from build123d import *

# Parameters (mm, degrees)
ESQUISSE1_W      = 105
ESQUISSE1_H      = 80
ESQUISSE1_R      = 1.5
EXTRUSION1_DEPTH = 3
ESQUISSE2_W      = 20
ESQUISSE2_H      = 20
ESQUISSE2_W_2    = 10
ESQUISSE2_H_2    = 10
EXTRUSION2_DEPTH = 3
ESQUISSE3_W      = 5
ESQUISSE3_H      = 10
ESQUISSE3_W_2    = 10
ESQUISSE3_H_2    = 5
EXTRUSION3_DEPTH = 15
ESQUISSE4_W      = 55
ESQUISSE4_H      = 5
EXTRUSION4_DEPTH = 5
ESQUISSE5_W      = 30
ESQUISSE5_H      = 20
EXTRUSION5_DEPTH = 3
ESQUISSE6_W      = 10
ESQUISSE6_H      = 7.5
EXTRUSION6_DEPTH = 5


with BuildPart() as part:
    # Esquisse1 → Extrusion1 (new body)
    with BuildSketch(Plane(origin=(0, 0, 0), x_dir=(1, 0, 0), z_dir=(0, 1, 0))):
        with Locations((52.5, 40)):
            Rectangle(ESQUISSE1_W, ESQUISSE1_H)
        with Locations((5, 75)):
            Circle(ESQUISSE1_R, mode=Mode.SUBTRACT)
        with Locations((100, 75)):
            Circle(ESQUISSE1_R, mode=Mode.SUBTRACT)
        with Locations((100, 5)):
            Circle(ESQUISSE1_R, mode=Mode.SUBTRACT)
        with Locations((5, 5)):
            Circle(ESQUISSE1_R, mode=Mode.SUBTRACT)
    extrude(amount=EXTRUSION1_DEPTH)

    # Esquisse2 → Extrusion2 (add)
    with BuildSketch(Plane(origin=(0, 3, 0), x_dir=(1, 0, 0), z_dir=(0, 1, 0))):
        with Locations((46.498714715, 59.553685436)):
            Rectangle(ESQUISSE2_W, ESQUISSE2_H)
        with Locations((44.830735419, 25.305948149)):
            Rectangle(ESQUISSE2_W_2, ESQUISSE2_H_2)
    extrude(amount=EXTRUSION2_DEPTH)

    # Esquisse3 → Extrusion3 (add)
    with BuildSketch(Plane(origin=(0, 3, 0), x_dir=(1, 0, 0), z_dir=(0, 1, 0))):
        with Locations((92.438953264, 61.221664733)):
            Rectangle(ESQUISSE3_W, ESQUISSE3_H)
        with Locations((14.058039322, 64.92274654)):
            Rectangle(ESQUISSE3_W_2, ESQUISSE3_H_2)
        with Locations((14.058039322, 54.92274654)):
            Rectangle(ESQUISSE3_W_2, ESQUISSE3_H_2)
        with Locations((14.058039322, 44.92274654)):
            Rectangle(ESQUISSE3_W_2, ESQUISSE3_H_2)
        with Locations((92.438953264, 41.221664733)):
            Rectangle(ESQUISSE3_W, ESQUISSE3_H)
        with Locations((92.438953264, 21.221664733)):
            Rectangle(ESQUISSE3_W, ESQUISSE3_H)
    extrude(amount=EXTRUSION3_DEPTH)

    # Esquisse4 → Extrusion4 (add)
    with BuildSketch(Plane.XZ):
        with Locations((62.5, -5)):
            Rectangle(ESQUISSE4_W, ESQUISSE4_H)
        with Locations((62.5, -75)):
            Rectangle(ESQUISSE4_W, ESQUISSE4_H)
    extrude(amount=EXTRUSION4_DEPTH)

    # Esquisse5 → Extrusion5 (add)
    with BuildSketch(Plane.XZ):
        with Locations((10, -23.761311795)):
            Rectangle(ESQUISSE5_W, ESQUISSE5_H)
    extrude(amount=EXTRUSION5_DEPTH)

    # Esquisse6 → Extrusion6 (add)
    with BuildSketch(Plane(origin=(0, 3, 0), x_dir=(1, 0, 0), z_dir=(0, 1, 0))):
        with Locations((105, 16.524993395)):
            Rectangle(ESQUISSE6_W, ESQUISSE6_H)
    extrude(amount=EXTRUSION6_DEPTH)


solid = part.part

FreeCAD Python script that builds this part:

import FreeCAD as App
import Part
import Sketcher
from FreeCAD import Vector

doc = App.newDocument("Part")
body = doc.addObject("PartDesign::Body", "Body")

# Sketch on XZ plane
sketch1 = body.newObject("Sketcher::SketchObject", "Sketch")
sketch1.AttachmentSupport = (doc.getObject("XZ_Plane"), [""])
sketch1.MapMode = "FlatFace"
sketch1.addGeometry([
    Part.LineSegment(Vector(0, -80, 0), Vector(0, 0, 0)),  # 0
    Part.LineSegment(Vector(0, 0, 0), Vector(105, 0, 0)),  # 1
    Part.LineSegment(Vector(105, 0, 0), Vector(105, -80, 0)),  # 2
    Part.LineSegment(Vector(105, -80, 0), Vector(0, -80, 0)),  # 3
    Part.Circle(Vector(5, -5, 0), Vector(0, 0, 1), 1.5),  # 4
    Part.Circle(Vector(100, -5, 0), Vector(0, 0, 1), 1.5),  # 5
    Part.Circle(Vector(5, -75, 0), Vector(0, 0, 1), 1.5),  # 6
    Part.Circle(Vector(100, -75, 0), Vector(0, 0, 1), 1.5),  # 7
], False)
sketch1.addConstraint([
    Sketcher.Constraint("Coincident", 0, 2, 1, 1),
    Sketcher.Constraint("Coincident", 1, 2, 2, 1),
    Sketcher.Constraint("Coincident", 2, 2, 3, 1),
    Sketcher.Constraint("Coincident", 3, 2, 0, 1),
    Sketcher.Constraint("Vertical", 0),
    Sketcher.Constraint("Horizontal", 1),
    Sketcher.Constraint("Vertical", 2),
    Sketcher.Constraint("Horizontal", 3),
    Sketcher.Constraint("Coincident", 0, 2, -1, 1),
    Sketcher.Constraint("Equal", 4, 5),
    Sketcher.Constraint("Equal", 5, 6),
    Sketcher.Constraint("Equal", 6, 7),
    Sketcher.Constraint("Horizontal", 4, 3, 5, 3),
    Sketcher.Constraint("Horizontal", 6, 3, 7, 3),
    Sketcher.Constraint("Vertical", 4, 3, 6, 3),
    Sketcher.Constraint("Vertical", 5, 3, 7, 3),
    Sketcher.Constraint("Diameter", 4, 3.0),
    Sketcher.Constraint("DistanceX", 1, 1, 1, 2, 105.0),
    Sketcher.Constraint("DistanceY", 0, 1, 0, 2, 80.0),
    Sketcher.Constraint("DistanceX", -1, 1, 4, 3, 5.0),
    Sketcher.Constraint("DistanceY", 4, 3, -1, 1, 5.0),
    Sketcher.Constraint("DistanceX", -1, 1, 5, 3, 100.0),
    Sketcher.Constraint("DistanceY", 6, 3, -1, 1, 75.0),
])
pad1 = body.newObject("PartDesign::Pad", "Pad")
pad1.Profile = sketch1
pad1.Length = 3
pad1.Reversed = True

# Sketch on XZ plane
sketch2 = body.newObject("Sketcher::SketchObject", "Sketch001")
sketch2.AttachmentSupport = (doc.getObject("XZ_Plane"), [""])
sketch2.MapMode = "FlatFace"
sketch2.AttachmentOffset = App.Placement(Vector(0, 0, -3), App.Rotation())
sketch2.addGeometry([
    Part.LineSegment(Vector(36.498715, -69.553685, 0), Vector(36.498715, -49.553685, 0)),  # 0
    Part.LineSegment(Vector(36.498715, -49.553685, 0), Vector(56.498715, -49.553685, 0)),  # 1
    Part.LineSegment(Vector(56.498715, -49.553685, 0), Vector(56.498715, -69.553685, 0)),  # 2
    Part.LineSegment(Vector(56.498715, -69.553685, 0), Vector(36.498715, -69.553685, 0)),  # 3
    Part.LineSegment(Vector(39.830735, -30.305948, 0), Vector(39.830735, -20.305948, 0)),  # 4
    Part.LineSegment(Vector(39.830735, -20.305948, 0), Vector(49.830735, -20.305948, 0)),  # 5
    Part.LineSegment(Vector(49.830735, -20.305948, 0), Vector(49.830735, -30.305948, 0)),  # 6
    Part.LineSegment(Vector(49.830735, -30.305948, 0), Vector(39.830735, -30.305948, 0)),  # 7
], False)
sketch2.addConstraint([
    Sketcher.Constraint("Coincident", 0, 2, 1, 1),
    Sketcher.Constraint("Coincident", 1, 2, 2, 1),
    Sketcher.Constraint("Coincident", 2, 2, 3, 1),
    Sketcher.Constraint("Coincident", 3, 2, 0, 1),
    Sketcher.Constraint("Coincident", 4, 2, 5, 1),
    Sketcher.Constraint("Coincident", 5, 2, 6, 1),
    Sketcher.Constraint("Coincident", 6, 2, 7, 1),
    Sketcher.Constraint("Coincident", 7, 2, 4, 1),
    Sketcher.Constraint("Vertical", 0),
    Sketcher.Constraint("Horizontal", 1),
    Sketcher.Constraint("Vertical", 2),
    Sketcher.Constraint("Horizontal", 3),
    Sketcher.Constraint("Vertical", 4),
    Sketcher.Constraint("Horizontal", 5),
    Sketcher.Constraint("Vertical", 6),
    Sketcher.Constraint("Horizontal", 7),
    Sketcher.Constraint("Equal", 3, 0),
    Sketcher.Constraint("Equal", 7, 4),
    Sketcher.Constraint("DistanceX", 1, 1, 1, 2, 20.0),
    Sketcher.Constraint("DistanceX", 5, 1, 5, 2, 10.0),
    Sketcher.Constraint("DistanceY", 4, 2, -1, 1, 20.305948),
    Sketcher.Constraint("DistanceX", 0, 2, 4, 2, 3.332021),
    Sketcher.Constraint("DistanceX", -1, 1, 0, 2, 36.498715),
    Sketcher.Constraint("DistanceY", 0, 2, -1, 1, 49.553685),
])
pad2 = body.newObject("PartDesign::Pad", "Pad001")
pad2.Profile = sketch2
pad2.Length = 3
pad2.Reversed = True

# Sketch on XZ plane
sketch3 = body.newObject("Sketcher::SketchObject", "Sketch002")
sketch3.AttachmentSupport = (doc.getObject("XZ_Plane"), [""])
sketch3.MapMode = "FlatFace"
sketch3.AttachmentOffset = App.Placement(Vector(0, 0, -3), App.Rotation())
sketch3.addGeometry([
    Part.LineSegment(Vector(89.938953, -66.221665, 0), Vector(89.938953, -56.221665, 0)),  # 0
    Part.LineSegment(Vector(89.938953, -56.221665, 0), Vector(94.938953, -56.221665, 0)),  # 1
    Part.LineSegment(Vector(94.938953, -56.221665, 0), Vector(94.938953, -66.221665, 0)),  # 2
    Part.LineSegment(Vector(94.938953, -66.221665, 0), Vector(89.938953, -66.221665, 0)),  # 3
    Part.LineSegment(Vector(9.058039, -67.422747, 0), Vector(9.058039, -62.422747, 0)),  # 4
    Part.LineSegment(Vector(9.058039, -62.422747, 0), Vector(19.058039, -62.422747, 0)),  # 5
    Part.LineSegment(Vector(19.058039, -62.422747, 0), Vector(19.058039, -67.422747, 0)),  # 6
    Part.LineSegment(Vector(19.058039, -67.422747, 0), Vector(9.058039, -67.422747, 0)),  # 7
    Part.LineSegment(Vector(9.058039, -57.422747, 0), Vector(9.058039, -52.422747, 0)),  # 8
    Part.LineSegment(Vector(9.058039, -52.422747, 0), Vector(19.058039, -52.422747, 0)),  # 9
    Part.LineSegment(Vector(19.058039, -52.422747, 0), Vector(19.058039, -57.422747, 0)),  # 10
    Part.LineSegment(Vector(19.058039, -57.422747, 0), Vector(9.058039, -57.422747, 0)),  # 11
    Part.LineSegment(Vector(9.058039, -47.422747, 0), Vector(9.058039, -42.422747, 0)),  # 12
    Part.LineSegment(Vector(9.058039, -42.422747, 0), Vector(19.058039, -42.422747, 0)),  # 13
    Part.LineSegment(Vector(19.058039, -42.422747, 0), Vector(19.058039, -47.422747, 0)),  # 14
    Part.LineSegment(Vector(19.058039, -47.422747, 0), Vector(9.058039, -47.422747, 0)),  # 15
    Part.LineSegment(Vector(89.938953, -46.221665, 0), Vector(89.938953, -36.221665, 0)),  # 16
    Part.LineSegment(Vector(89.938953, -36.221665, 0), Vector(94.938953, -36.221665, 0)),  # 17
    Part.LineSegment(Vector(94.938953, -36.221665, 0), Vector(94.938953, -46.221665, 0)),  # 18
    Part.LineSegment(Vector(94.938953, -46.221665, 0), Vector(89.938953, -46.221665, 0)),  # 19
    Part.LineSegment(Vector(89.938953, -26.221665, 0), Vector(89.938953, -16.221665, 0)),  # 20
    Part.LineSegment(Vector(89.938953, -16.221665, 0), Vector(94.938953, -16.221665, 0)),  # 21
    Part.LineSegment(Vector(94.938953, -16.221665, 0), Vector(94.938953, -26.221665, 0)),  # 22
    Part.LineSegment(Vector(94.938953, -26.221665, 0), Vector(89.938953, -26.221665, 0)),  # 23
], False)
sketch3.addConstraint([
    Sketcher.Constraint("Coincident", 0, 2, 1, 1),
    Sketcher.Constraint("Coincident", 1, 2, 2, 1),
    Sketcher.Constraint("Coincident", 2, 2, 3, 1),
    Sketcher.Constraint("Coincident", 3, 2, 0, 1),
    Sketcher.Constraint("Coincident", 4, 2, 5, 1),
    Sketcher.Constraint("Coincident", 5, 2, 6, 1),
    Sketcher.Constraint("Coincident", 6, 2, 7, 1),
    Sketcher.Constraint("Coincident", 7, 2, 4, 1),
    Sketcher.Constraint("Coincident", 8, 2, 9, 1),
    Sketcher.Constraint("Coincident", 9, 2, 10, 1),
    Sketcher.Constraint("Coincident", 10, 2, 11, 1),
    Sketcher.Constraint("Coincident", 11, 2, 8, 1),
    Sketcher.Constraint("Coincident", 12, 2, 13, 1),
    Sketcher.Constraint("Coincident", 13, 2, 14, 1),
    Sketcher.Constraint("Coincident", 14, 2, 15, 1),
    Sketcher.Constraint("Coincident", 15, 2, 12, 1),
    Sketcher.Constraint("Coincident", 16, 2, 17, 1),
    Sketcher.Constraint("Coincident", 17, 2, 18, 1),
    Sketcher.Constraint("Coincident", 18, 2, 19, 1),
    Sketcher.Constraint("Coincident", 19, 2, 16, 1),
    Sketcher.Constraint("Coincident", 20, 2, 21, 1),
    Sketcher.Constraint("Coincident", 21, 2, 22, 1),
    Sketcher.Constraint("Coincident", 22, 2, 23, 1),
    Sketcher.Constraint("Coincident", 23, 2, 20, 1),
    Sketcher.Constraint("Vertical", 0),
    Sketcher.Constraint("Horizontal", 1),
    Sketcher.Constraint("Vertical", 2),
    Sketcher.Constraint("Horizontal", 3),
    Sketcher.Constraint("Vertical", 4),
    Sketcher.Constraint("Horizontal", 5),
    Sketcher.Constraint("Vertical", 6),
    Sketcher.Constraint("Horizontal", 7),
    Sketcher.Constraint("Vertical", 8),
    Sketcher.Constraint("Horizontal", 9),
    Sketcher.Constraint("Vertical", 10),
    Sketcher.Constraint("Horizontal", 11),
    Sketcher.Constraint("Vertical", 12),
    Sketcher.Constraint("Horizontal", 13),
    Sketcher.Constraint("Vertical", 14),
    Sketcher.Constraint("Horizontal", 15),
    Sketcher.Constraint("Vertical", 16),
    Sketcher.Constraint("Horizontal", 17),
    Sketcher.Constraint("Vertical", 18),
    Sketcher.Constraint("Horizontal", 19),
    Sketcher.Constraint("Vertical", 20),
    Sketcher.Constraint("Horizontal", 21),
    Sketcher.Constraint("Vertical", 22),
    Sketcher.Constraint("Horizontal", 23),
    Sketcher.Constraint("Vertical", 7, 2, 8, 2),
    Sketcher.Constraint("Vertical", 6, 2, 9, 2),
    Sketcher.Constraint("Vertical", 11, 2, 12, 2),
    Sketcher.Constraint("Vertical", 10, 2, 13, 2),
    Sketcher.Constraint("Vertical", 3, 2, 16, 2),
    Sketcher.Constraint("Vertical", 2, 2, 17, 2),
    Sketcher.Constraint("Vertical", 19, 2, 20, 2),
    Sketcher.Constraint("Vertical", 18, 2, 21, 2),
    Sketcher.Constraint("Equal", 15, 0),
    Sketcher.Constraint("Equal", 23, 4),
    Sketcher.Constraint("Equal", 6, 8),
    Sketcher.Constraint("Equal", 10, 12),
    Sketcher.Constraint("Equal", 2, 16),
    Sketcher.Constraint("Equal", 18, 20),
    Sketcher.Constraint("DistanceX", 1, 1, 1, 2, 5.0),
    Sketcher.Constraint("DistanceX", 5, 1, 5, 2, 10.0),
    Sketcher.Constraint("DistanceY", 4, 2, 8, 2, 10.0),
    Sketcher.Constraint("DistanceY", 8, 2, 12, 2, 10.0),
    Sketcher.Constraint("DistanceY", 0, 2, 16, 2, 20.0),
    Sketcher.Constraint("DistanceY", 16, 2, 20, 2, 20.0),
    Sketcher.Constraint("DistanceX", -1, 1, 4, 2, 9.058039),
    Sketcher.Constraint("DistanceY", 3, 2, 4, 2, 3.798918),
    Sketcher.Constraint("DistanceX", -1, 1, 0, 2, 89.938953),
    Sketcher.Constraint("DistanceY", 0, 2, -1, 1, 56.221665),
])
pad3 = body.newObject("PartDesign::Pad", "Pad002")
pad3.Profile = sketch3
pad3.Length = 15
pad3.Reversed = True

# Sketch on XZ plane
sketch4 = body.newObject("Sketcher::SketchObject", "Sketch003")
sketch4.AttachmentSupport = (doc.getObject("XZ_Plane"), [""])
sketch4.MapMode = "FlatFace"
sketch4.addGeometry([
    Part.LineSegment(Vector(35, -2.5, 0), Vector(35, -7.5, 0)),  # 0
    Part.LineSegment(Vector(35, -7.5, 0), Vector(90, -7.5, 0)),  # 1
    Part.LineSegment(Vector(90, -7.5, 0), Vector(90, -2.5, 0)),  # 2
    Part.LineSegment(Vector(90, -2.5, 0), Vector(35, -2.5, 0)),  # 3
    Part.LineSegment(Vector(35, -72.5, 0), Vector(35, -77.5, 0)),  # 4
    Part.LineSegment(Vector(35, -77.5, 0), Vector(90, -77.5, 0)),  # 5
    Part.LineSegment(Vector(90, -77.5, 0), Vector(90, -72.5, 0)),  # 6
    Part.LineSegment(Vector(90, -72.5, 0), Vector(35, -72.5, 0)),  # 7
], False)
sketch4.addConstraint([
    Sketcher.Constraint("Coincident", 0, 2, 1, 1),
    Sketcher.Constraint("Coincident", 1, 2, 2, 1),
    Sketcher.Constraint("Coincident", 2, 2, 3, 1),
    Sketcher.Constraint("Coincident", 3, 2, 0, 1),
    Sketcher.Constraint("Coincident", 4, 2, 5, 1),
    Sketcher.Constraint("Coincident", 5, 2, 6, 1),
    Sketcher.Constraint("Coincident", 6, 2, 7, 1),
    Sketcher.Constraint("Coincident", 7, 2, 4, 1),
    Sketcher.Constraint("Vertical", 0),
    Sketcher.Constraint("Horizontal", 1),
    Sketcher.Constraint("Vertical", 2),
    Sketcher.Constraint("Horizontal", 3),
    Sketcher.Constraint("Vertical", 4),
    Sketcher.Constraint("Horizontal", 5),
    Sketcher.Constraint("Vertical", 6),
    Sketcher.Constraint("Horizontal", 7),
    Sketcher.Constraint("Vertical", 3, 2, 4, 2),
    Sketcher.Constraint("Vertical", 2, 2, 5, 2),
    Sketcher.Constraint("Equal", 2, 4),
    Sketcher.Constraint("DistanceX", 1, 1, 1, 2, 55.0),
    Sketcher.Constraint("DistanceY", 0, 2, 0, 1, 5.0),
    Sketcher.Constraint("DistanceX", -1, 1, 0, 2, 35.0),
    Sketcher.Constraint("DistanceY", 4, 2, 0, 2, 70.0),
    Sketcher.Constraint("DistanceY", 0, 2, -1, 1, 7.5),
])
pad4 = body.newObject("PartDesign::Pad", "Pad003")
pad4.Profile = sketch4
pad4.Length = 5

# Sketch on XZ plane
sketch5 = body.newObject("Sketcher::SketchObject", "Sketch004")
sketch5.AttachmentSupport = (doc.getObject("XZ_Plane"), [""])
sketch5.MapMode = "FlatFace"
sketch5.addGeometry([
    Part.LineSegment(Vector(-5, -13.761312, 0), Vector(-5, -33.761312, 0)),
    Part.LineSegment(Vector(-5, -33.761312, 0), Vector(25, -33.761312, 0)),
    Part.LineSegment(Vector(25, -33.761312, 0), Vector(25, -13.761312, 0)),
    Part.LineSegment(Vector(25, -13.761312, 0), Vector(-5, -13.761312, 0)),
], False)
sketch5.addConstraint([
    Sketcher.Constraint("Coincident", 0, 2, 1, 1),
    Sketcher.Constraint("Coincident", 1, 2, 2, 1),
    Sketcher.Constraint("Coincident", 2, 2, 3, 1),
    Sketcher.Constraint("Coincident", 3, 2, 0, 1),
    Sketcher.Constraint("Vertical", 0),
    Sketcher.Constraint("Horizontal", 1),
    Sketcher.Constraint("Vertical", 2),
    Sketcher.Constraint("Horizontal", 3),
    Sketcher.Constraint("DistanceX", 1, 1, 1, 2, 30.0),
    Sketcher.Constraint("DistanceY", 0, 2, 0, 1, 20.0),
    Sketcher.Constraint("DistanceX", 0, 2, -1, 1, 5.0),
    Sketcher.Constraint("DistanceY", 0, 2, -1, 1, 33.761312),
])
pad5 = body.newObject("PartDesign::Pad", "Pad004")
pad5.Profile = sketch5
pad5.Length = 3

# Sketch on XZ plane
sketch6 = body.newObject("Sketcher::SketchObject", "Sketch005")
sketch6.AttachmentSupport = (doc.getObject("XZ_Plane"), [""])
sketch6.MapMode = "FlatFace"
sketch6.AttachmentOffset = App.Placement(Vector(0, 0, -3), App.Rotation())
sketch6.addGeometry([
    Part.LineSegment(Vector(100, -20.274993, 0), Vector(100, -12.774993, 0)),
    Part.LineSegment(Vector(100, -12.774993, 0), Vector(110, -12.774993, 0)),
    Part.LineSegment(Vector(110, -12.774993, 0), Vector(110, -20.274993, 0)),
    Part.LineSegment(Vector(110, -20.274993, 0), Vector(100, -20.274993, 0)),
], False)
sketch6.addConstraint([
    Sketcher.Constraint("Coincident", 0, 2, 1, 1),
    Sketcher.Constraint("Coincident", 1, 2, 2, 1),
    Sketcher.Constraint("Coincident", 2, 2, 3, 1),
    Sketcher.Constraint("Coincident", 3, 2, 0, 1),
    Sketcher.Constraint("Vertical", 0),
    Sketcher.Constraint("Horizontal", 1),
    Sketcher.Constraint("Vertical", 2),
    Sketcher.Constraint("Horizontal", 3),
    Sketcher.Constraint("DistanceX", 1, 1, 1, 2, 10.0),
    Sketcher.Constraint("DistanceY", 0, 1, 0, 2, 7.5),
    Sketcher.Constraint("DistanceX", -1, 1, 0, 2, 100.0),
    Sketcher.Constraint("DistanceY", 0, 2, -1, 1, 12.774993),
])
pad6 = body.newObject("PartDesign::Pad", "Pad005")
pad6.Profile = sketch6
pad6.Length = 5
pad6.Reversed = True

doc.recompute()
